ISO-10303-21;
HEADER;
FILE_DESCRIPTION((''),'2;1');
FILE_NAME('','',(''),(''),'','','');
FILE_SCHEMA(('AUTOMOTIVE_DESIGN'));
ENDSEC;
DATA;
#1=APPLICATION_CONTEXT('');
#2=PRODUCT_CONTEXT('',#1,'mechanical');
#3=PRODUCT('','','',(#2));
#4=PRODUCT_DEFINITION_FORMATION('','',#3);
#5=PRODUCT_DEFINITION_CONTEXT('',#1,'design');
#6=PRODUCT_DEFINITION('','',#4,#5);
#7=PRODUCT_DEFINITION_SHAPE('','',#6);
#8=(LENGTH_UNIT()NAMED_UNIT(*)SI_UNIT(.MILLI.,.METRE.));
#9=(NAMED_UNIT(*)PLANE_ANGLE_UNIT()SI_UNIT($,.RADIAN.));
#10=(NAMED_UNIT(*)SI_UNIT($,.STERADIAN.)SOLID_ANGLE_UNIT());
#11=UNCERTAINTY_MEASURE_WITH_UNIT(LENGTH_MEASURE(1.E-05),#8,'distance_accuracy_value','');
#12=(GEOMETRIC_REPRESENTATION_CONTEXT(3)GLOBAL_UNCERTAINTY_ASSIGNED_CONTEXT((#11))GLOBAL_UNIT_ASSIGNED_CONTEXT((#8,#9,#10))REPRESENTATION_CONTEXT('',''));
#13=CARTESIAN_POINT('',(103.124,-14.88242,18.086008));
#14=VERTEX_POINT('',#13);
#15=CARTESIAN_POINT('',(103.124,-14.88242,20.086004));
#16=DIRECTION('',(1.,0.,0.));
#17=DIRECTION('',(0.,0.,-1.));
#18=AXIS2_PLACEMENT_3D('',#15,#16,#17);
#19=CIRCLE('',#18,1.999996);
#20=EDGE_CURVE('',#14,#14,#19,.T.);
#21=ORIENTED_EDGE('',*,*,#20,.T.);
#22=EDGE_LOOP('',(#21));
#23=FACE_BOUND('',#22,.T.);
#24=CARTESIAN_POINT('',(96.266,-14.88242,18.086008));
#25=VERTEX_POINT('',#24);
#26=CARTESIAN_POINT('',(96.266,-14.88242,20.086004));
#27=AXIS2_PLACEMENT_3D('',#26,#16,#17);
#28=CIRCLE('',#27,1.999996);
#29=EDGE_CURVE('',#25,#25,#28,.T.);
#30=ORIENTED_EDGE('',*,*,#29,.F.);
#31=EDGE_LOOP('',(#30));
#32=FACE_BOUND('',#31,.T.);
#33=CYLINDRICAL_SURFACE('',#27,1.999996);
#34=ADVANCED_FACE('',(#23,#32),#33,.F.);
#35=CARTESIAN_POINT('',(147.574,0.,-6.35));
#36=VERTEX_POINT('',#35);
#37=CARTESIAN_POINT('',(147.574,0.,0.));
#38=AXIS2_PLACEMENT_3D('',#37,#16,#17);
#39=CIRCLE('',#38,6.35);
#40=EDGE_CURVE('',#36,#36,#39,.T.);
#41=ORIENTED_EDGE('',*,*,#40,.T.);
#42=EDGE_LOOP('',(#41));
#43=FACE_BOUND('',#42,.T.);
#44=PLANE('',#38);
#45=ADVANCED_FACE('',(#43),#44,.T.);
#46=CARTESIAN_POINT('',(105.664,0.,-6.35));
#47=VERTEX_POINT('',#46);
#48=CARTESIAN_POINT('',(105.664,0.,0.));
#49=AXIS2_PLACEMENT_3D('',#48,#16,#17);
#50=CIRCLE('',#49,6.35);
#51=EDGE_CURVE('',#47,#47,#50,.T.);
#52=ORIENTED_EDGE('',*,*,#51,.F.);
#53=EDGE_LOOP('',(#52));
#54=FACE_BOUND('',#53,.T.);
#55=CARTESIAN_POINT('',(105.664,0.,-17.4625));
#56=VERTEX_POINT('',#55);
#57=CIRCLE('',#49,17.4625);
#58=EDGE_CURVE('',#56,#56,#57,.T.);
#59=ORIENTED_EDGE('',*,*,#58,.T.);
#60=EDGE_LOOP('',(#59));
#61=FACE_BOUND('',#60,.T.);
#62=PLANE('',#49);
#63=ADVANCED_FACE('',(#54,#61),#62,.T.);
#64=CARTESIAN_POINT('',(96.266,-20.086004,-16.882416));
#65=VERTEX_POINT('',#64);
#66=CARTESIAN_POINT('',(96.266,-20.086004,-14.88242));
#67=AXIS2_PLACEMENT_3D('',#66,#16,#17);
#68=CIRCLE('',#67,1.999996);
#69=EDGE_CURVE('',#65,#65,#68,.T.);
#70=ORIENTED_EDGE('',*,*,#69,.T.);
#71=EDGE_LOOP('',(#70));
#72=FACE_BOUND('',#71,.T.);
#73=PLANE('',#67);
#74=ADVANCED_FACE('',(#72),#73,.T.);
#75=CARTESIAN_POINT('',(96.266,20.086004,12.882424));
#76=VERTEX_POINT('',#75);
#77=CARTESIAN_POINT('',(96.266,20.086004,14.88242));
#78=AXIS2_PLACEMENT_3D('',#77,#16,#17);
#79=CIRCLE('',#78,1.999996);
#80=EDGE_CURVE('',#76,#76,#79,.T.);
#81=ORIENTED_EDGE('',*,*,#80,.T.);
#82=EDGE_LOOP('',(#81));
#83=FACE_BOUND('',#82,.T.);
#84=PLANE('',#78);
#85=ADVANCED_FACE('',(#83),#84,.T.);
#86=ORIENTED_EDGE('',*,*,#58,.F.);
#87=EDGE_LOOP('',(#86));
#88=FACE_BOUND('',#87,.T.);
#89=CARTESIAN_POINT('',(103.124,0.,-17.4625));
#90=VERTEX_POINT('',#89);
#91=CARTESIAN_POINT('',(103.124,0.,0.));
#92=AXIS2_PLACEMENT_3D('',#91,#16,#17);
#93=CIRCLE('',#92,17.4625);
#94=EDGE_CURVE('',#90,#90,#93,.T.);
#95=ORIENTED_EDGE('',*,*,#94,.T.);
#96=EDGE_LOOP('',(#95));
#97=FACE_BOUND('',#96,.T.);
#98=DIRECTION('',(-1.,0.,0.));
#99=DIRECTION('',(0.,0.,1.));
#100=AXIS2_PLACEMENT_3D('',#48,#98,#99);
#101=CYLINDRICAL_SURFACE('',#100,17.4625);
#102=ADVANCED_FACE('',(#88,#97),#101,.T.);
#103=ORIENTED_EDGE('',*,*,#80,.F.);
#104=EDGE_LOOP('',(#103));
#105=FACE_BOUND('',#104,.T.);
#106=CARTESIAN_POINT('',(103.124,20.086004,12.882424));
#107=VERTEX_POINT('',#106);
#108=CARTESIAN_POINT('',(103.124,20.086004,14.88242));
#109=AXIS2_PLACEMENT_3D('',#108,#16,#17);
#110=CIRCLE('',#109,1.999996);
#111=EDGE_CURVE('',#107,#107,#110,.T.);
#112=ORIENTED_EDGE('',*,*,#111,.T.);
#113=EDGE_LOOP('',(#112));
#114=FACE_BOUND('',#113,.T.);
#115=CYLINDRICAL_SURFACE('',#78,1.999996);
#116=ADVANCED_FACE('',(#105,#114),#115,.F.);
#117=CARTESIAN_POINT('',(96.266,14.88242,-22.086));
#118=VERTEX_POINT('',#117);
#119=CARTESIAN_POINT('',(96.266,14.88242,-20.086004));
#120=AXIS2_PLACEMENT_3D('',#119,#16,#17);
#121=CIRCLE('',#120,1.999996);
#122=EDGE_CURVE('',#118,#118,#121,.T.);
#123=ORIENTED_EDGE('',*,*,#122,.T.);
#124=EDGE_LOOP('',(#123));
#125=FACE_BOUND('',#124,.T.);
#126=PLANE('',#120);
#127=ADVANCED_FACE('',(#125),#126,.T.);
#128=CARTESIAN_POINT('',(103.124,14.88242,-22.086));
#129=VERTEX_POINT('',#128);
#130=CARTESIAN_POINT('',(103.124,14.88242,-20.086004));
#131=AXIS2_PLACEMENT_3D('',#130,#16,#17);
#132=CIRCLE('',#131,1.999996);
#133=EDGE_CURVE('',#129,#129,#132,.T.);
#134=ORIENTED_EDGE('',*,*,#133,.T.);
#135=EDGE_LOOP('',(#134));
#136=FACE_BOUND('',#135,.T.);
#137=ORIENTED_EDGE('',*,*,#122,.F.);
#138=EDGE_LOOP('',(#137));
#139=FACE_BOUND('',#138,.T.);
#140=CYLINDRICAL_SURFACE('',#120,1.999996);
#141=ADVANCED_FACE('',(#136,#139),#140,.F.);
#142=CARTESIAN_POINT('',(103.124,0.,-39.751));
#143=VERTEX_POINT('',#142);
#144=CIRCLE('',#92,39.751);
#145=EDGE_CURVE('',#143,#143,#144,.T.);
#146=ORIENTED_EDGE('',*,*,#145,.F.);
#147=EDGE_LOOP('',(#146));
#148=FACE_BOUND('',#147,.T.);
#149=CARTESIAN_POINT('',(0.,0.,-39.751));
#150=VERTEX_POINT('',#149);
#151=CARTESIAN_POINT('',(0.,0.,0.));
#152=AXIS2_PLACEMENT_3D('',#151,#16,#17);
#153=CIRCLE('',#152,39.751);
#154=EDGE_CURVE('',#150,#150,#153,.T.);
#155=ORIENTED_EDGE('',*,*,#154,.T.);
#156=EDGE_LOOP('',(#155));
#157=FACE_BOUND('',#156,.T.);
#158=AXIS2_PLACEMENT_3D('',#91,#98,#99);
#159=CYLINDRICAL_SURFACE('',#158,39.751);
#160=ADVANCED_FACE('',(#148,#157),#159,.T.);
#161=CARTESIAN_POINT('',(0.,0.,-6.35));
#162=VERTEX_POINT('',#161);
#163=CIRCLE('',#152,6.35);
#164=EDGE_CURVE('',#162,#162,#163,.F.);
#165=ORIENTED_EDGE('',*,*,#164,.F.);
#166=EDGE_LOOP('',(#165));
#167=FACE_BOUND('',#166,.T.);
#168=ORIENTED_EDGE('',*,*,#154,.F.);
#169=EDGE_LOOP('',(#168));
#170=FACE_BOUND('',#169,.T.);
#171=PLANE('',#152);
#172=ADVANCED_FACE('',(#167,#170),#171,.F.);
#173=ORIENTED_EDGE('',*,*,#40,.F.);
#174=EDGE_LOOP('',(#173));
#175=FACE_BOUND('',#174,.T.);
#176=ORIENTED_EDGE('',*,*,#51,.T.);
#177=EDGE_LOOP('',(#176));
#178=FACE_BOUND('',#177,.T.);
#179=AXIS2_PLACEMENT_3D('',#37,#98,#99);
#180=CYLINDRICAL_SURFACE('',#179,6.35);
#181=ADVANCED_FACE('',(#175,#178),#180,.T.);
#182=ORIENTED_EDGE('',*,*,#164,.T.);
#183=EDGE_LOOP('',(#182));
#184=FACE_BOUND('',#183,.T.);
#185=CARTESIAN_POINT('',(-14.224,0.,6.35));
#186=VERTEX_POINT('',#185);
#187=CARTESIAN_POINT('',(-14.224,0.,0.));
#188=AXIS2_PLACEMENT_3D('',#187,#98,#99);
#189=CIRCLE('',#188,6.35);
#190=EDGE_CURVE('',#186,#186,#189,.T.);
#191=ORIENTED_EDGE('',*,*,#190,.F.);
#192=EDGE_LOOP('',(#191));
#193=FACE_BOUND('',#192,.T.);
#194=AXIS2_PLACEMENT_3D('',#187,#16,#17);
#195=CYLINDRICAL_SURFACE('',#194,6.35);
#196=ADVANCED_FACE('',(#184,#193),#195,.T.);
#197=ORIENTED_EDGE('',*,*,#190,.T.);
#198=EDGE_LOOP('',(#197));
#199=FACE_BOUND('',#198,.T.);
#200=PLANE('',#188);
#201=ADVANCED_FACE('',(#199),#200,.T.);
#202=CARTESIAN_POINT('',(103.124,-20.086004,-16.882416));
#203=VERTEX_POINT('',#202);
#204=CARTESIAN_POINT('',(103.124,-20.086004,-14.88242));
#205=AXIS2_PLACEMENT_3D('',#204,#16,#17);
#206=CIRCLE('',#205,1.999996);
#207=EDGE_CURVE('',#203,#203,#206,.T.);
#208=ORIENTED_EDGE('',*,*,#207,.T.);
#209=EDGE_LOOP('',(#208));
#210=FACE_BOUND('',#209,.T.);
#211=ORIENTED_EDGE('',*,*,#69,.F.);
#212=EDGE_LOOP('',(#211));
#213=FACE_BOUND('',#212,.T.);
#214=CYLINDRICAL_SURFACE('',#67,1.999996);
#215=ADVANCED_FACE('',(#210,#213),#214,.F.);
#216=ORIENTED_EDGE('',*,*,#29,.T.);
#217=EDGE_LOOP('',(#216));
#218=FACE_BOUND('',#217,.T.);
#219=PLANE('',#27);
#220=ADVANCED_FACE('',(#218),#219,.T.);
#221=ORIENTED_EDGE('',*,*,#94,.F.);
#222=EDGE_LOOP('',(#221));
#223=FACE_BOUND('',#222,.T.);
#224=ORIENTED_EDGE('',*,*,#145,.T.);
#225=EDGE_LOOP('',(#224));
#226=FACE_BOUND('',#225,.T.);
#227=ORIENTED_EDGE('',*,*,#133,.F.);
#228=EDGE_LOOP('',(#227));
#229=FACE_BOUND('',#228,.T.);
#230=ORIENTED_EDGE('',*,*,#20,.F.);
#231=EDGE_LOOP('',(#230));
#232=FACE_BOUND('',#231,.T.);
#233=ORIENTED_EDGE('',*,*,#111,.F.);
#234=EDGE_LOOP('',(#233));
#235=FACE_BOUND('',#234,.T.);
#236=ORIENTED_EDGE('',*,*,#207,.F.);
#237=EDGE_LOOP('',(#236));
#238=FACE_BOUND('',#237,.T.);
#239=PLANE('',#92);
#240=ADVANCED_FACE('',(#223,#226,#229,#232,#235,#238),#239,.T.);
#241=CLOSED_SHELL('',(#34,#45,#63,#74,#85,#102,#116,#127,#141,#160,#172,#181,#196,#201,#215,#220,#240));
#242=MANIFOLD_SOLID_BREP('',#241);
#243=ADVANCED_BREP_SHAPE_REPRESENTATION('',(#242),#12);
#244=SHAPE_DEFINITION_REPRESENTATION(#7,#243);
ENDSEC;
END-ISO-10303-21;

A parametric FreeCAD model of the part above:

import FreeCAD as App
import Part
import Sketcher

V = App.Vector
Q = App.Units.Quantity

doc = App.newDocument("Part")
body = doc.addObject("PartDesign::Body", "Body")

sketch1 = body.newObject("Sketcher::SketchObject", "Sketch")
sketch1.AttachmentSupport = (doc.getObject("YZ_Plane"), [""])
sketch1.MapMode = "FlatFace"
sketch1.addGeometry(Part.Circle(V(0, 0, 0), V(0, 0, 1), 40), False)
sketch1.addConstraint([
    Sketcher.Constraint("Coincident", 0, 3, -1, 1),
    Sketcher.Constraint("Diameter", 0, Q("3.13 in")),
])
pad1 = body.newObject("PartDesign::Pad", "Pad")
pad1.Profile = sketch1
pad1.Length = Q("4.06 in")

sketch2 = body.newObject("Sketcher::SketchObject", "Sketch001")
sketch2.AttachmentSupport = (doc.getObject("YZ_Plane"), [""])
sketch2.MapMode = "FlatFace"
sketch2.AttachmentOffset = App.Placement(V(0, 0, 4.06 * 25.4), App.Rotation())
sketch2.addGeometry(Part.Circle(V(0, 0, 0), V(0, 0, 1), 17), False)
sketch2.addConstraint([
    Sketcher.Constraint("Coincident", 0, 3, -1, 1),
    Sketcher.Constraint("Diameter", 0, Q("1.375 in")),
])
pad2 = body.newObject("PartDesign::Pad", "Pad001")
pad2.Profile = sketch2
pad2.Length = Q("0.1 in")

sketch3 = body.newObject("Sketcher::SketchObject", "Sketch002")
sketch3.AttachmentSupport = (doc.getObject("YZ_Plane"), [""])
sketch3.MapMode = "FlatFace"
sketch3.AttachmentOffset = App.Placement(V(0, 0, 4.16 * 25.4), App.Rotation())
sketch3.addGeometry(Part.Circle(V(0, 0, 0), V(0, 0, 1), 6), False)
sketch3.addConstraint([
    Sketcher.Constraint("Coincident", 0, 3, -1, 1),
    Sketcher.Constraint("Diameter", 0, Q("0.5 in")),
])
pad3 = body.newObject("PartDesign::Pad", "Pad002")
pad3.Profile = sketch3
pad3.Length = Q("1.65 in")

sketch4 = body.newObject("Sketcher::SketchObject", "Sketch003")
sketch4.AttachmentSupport = (doc.getObject("YZ_Plane"), [""])
sketch4.MapMode = "FlatFace"
sketch4.AttachmentOffset = App.Placement(V(0, 0, -0.56 * 25.4), App.Rotation())
sketch4.addGeometry(Part.Circle(V(0, 0, 0), V(0, 0, 1), 6), False)
sketch4.addConstraint([
    Sketcher.Constraint("Coincident", 0, 3, -1, 1),
    Sketcher.Constraint("Diameter", 0, Q("0.5 in")),
])
pad4 = body.newObject("PartDesign::Pad", "Pad003")
pad4.Profile = sketch4
pad4.Length = Q("0.56 in")

sketch5 = body.newObject("Sketcher::SketchObject", "Sketch004")
sketch5.AttachmentSupport = (doc.getObject("YZ_Plane"), [""])
sketch5.MapMode = "FlatFace"
sketch5.AttachmentOffset = App.Placement(V(0, 0, 4.06 * 25.4), App.Rotation())
sketch5.addGeometry([
    Part.Circle(V(20.1, 14.9, 0), V(0, 0, 1), 2),
    Part.Circle(V(14.9, -20.1, 0), V(0, 0, 1), 2),
    Part.Circle(V(-20.1, -14.9, 0), V(0, 0, 1), 2),
    Part.Circle(V(-14.9, 20.1, 0), V(0, 0, 1), 2),
], False)
sketch5.addConstraint([
    Sketcher.Constraint("Equal", 0, 1),
    Sketcher.Constraint("Equal", 1, 2),
    Sketcher.Constraint("Equal", 2, 3),
    Sketcher.Constraint("Symmetric", 0, 3, 2, 3, -1, 1),
    Sketcher.Constraint("Symmetric", 1, 3, 3, 3, -1, 1),
    Sketcher.Constraint("Diameter", 0, Q("3.999992 mm")),
    Sketcher.Constraint("DistanceY", -1, 1, 0, 3, Q("14.88242 mm")),
    Sketcher.Constraint("DistanceX", -1, 1, 1, 3, Q("14.88242 mm")),
    Sketcher.Constraint("DistanceX", 2, 3, 0, 3, Q("40.172009 mm")),
    Sketcher.Constraint("DistanceY", 1, 3, 3, 3, Q("40.172009 mm")),
])
pocket1 = body.newObject("PartDesign::Pocket", "Pocket")
pocket1.Profile = sketch5
pocket1.Length = Q("0.27 in")

doc.recompute()
